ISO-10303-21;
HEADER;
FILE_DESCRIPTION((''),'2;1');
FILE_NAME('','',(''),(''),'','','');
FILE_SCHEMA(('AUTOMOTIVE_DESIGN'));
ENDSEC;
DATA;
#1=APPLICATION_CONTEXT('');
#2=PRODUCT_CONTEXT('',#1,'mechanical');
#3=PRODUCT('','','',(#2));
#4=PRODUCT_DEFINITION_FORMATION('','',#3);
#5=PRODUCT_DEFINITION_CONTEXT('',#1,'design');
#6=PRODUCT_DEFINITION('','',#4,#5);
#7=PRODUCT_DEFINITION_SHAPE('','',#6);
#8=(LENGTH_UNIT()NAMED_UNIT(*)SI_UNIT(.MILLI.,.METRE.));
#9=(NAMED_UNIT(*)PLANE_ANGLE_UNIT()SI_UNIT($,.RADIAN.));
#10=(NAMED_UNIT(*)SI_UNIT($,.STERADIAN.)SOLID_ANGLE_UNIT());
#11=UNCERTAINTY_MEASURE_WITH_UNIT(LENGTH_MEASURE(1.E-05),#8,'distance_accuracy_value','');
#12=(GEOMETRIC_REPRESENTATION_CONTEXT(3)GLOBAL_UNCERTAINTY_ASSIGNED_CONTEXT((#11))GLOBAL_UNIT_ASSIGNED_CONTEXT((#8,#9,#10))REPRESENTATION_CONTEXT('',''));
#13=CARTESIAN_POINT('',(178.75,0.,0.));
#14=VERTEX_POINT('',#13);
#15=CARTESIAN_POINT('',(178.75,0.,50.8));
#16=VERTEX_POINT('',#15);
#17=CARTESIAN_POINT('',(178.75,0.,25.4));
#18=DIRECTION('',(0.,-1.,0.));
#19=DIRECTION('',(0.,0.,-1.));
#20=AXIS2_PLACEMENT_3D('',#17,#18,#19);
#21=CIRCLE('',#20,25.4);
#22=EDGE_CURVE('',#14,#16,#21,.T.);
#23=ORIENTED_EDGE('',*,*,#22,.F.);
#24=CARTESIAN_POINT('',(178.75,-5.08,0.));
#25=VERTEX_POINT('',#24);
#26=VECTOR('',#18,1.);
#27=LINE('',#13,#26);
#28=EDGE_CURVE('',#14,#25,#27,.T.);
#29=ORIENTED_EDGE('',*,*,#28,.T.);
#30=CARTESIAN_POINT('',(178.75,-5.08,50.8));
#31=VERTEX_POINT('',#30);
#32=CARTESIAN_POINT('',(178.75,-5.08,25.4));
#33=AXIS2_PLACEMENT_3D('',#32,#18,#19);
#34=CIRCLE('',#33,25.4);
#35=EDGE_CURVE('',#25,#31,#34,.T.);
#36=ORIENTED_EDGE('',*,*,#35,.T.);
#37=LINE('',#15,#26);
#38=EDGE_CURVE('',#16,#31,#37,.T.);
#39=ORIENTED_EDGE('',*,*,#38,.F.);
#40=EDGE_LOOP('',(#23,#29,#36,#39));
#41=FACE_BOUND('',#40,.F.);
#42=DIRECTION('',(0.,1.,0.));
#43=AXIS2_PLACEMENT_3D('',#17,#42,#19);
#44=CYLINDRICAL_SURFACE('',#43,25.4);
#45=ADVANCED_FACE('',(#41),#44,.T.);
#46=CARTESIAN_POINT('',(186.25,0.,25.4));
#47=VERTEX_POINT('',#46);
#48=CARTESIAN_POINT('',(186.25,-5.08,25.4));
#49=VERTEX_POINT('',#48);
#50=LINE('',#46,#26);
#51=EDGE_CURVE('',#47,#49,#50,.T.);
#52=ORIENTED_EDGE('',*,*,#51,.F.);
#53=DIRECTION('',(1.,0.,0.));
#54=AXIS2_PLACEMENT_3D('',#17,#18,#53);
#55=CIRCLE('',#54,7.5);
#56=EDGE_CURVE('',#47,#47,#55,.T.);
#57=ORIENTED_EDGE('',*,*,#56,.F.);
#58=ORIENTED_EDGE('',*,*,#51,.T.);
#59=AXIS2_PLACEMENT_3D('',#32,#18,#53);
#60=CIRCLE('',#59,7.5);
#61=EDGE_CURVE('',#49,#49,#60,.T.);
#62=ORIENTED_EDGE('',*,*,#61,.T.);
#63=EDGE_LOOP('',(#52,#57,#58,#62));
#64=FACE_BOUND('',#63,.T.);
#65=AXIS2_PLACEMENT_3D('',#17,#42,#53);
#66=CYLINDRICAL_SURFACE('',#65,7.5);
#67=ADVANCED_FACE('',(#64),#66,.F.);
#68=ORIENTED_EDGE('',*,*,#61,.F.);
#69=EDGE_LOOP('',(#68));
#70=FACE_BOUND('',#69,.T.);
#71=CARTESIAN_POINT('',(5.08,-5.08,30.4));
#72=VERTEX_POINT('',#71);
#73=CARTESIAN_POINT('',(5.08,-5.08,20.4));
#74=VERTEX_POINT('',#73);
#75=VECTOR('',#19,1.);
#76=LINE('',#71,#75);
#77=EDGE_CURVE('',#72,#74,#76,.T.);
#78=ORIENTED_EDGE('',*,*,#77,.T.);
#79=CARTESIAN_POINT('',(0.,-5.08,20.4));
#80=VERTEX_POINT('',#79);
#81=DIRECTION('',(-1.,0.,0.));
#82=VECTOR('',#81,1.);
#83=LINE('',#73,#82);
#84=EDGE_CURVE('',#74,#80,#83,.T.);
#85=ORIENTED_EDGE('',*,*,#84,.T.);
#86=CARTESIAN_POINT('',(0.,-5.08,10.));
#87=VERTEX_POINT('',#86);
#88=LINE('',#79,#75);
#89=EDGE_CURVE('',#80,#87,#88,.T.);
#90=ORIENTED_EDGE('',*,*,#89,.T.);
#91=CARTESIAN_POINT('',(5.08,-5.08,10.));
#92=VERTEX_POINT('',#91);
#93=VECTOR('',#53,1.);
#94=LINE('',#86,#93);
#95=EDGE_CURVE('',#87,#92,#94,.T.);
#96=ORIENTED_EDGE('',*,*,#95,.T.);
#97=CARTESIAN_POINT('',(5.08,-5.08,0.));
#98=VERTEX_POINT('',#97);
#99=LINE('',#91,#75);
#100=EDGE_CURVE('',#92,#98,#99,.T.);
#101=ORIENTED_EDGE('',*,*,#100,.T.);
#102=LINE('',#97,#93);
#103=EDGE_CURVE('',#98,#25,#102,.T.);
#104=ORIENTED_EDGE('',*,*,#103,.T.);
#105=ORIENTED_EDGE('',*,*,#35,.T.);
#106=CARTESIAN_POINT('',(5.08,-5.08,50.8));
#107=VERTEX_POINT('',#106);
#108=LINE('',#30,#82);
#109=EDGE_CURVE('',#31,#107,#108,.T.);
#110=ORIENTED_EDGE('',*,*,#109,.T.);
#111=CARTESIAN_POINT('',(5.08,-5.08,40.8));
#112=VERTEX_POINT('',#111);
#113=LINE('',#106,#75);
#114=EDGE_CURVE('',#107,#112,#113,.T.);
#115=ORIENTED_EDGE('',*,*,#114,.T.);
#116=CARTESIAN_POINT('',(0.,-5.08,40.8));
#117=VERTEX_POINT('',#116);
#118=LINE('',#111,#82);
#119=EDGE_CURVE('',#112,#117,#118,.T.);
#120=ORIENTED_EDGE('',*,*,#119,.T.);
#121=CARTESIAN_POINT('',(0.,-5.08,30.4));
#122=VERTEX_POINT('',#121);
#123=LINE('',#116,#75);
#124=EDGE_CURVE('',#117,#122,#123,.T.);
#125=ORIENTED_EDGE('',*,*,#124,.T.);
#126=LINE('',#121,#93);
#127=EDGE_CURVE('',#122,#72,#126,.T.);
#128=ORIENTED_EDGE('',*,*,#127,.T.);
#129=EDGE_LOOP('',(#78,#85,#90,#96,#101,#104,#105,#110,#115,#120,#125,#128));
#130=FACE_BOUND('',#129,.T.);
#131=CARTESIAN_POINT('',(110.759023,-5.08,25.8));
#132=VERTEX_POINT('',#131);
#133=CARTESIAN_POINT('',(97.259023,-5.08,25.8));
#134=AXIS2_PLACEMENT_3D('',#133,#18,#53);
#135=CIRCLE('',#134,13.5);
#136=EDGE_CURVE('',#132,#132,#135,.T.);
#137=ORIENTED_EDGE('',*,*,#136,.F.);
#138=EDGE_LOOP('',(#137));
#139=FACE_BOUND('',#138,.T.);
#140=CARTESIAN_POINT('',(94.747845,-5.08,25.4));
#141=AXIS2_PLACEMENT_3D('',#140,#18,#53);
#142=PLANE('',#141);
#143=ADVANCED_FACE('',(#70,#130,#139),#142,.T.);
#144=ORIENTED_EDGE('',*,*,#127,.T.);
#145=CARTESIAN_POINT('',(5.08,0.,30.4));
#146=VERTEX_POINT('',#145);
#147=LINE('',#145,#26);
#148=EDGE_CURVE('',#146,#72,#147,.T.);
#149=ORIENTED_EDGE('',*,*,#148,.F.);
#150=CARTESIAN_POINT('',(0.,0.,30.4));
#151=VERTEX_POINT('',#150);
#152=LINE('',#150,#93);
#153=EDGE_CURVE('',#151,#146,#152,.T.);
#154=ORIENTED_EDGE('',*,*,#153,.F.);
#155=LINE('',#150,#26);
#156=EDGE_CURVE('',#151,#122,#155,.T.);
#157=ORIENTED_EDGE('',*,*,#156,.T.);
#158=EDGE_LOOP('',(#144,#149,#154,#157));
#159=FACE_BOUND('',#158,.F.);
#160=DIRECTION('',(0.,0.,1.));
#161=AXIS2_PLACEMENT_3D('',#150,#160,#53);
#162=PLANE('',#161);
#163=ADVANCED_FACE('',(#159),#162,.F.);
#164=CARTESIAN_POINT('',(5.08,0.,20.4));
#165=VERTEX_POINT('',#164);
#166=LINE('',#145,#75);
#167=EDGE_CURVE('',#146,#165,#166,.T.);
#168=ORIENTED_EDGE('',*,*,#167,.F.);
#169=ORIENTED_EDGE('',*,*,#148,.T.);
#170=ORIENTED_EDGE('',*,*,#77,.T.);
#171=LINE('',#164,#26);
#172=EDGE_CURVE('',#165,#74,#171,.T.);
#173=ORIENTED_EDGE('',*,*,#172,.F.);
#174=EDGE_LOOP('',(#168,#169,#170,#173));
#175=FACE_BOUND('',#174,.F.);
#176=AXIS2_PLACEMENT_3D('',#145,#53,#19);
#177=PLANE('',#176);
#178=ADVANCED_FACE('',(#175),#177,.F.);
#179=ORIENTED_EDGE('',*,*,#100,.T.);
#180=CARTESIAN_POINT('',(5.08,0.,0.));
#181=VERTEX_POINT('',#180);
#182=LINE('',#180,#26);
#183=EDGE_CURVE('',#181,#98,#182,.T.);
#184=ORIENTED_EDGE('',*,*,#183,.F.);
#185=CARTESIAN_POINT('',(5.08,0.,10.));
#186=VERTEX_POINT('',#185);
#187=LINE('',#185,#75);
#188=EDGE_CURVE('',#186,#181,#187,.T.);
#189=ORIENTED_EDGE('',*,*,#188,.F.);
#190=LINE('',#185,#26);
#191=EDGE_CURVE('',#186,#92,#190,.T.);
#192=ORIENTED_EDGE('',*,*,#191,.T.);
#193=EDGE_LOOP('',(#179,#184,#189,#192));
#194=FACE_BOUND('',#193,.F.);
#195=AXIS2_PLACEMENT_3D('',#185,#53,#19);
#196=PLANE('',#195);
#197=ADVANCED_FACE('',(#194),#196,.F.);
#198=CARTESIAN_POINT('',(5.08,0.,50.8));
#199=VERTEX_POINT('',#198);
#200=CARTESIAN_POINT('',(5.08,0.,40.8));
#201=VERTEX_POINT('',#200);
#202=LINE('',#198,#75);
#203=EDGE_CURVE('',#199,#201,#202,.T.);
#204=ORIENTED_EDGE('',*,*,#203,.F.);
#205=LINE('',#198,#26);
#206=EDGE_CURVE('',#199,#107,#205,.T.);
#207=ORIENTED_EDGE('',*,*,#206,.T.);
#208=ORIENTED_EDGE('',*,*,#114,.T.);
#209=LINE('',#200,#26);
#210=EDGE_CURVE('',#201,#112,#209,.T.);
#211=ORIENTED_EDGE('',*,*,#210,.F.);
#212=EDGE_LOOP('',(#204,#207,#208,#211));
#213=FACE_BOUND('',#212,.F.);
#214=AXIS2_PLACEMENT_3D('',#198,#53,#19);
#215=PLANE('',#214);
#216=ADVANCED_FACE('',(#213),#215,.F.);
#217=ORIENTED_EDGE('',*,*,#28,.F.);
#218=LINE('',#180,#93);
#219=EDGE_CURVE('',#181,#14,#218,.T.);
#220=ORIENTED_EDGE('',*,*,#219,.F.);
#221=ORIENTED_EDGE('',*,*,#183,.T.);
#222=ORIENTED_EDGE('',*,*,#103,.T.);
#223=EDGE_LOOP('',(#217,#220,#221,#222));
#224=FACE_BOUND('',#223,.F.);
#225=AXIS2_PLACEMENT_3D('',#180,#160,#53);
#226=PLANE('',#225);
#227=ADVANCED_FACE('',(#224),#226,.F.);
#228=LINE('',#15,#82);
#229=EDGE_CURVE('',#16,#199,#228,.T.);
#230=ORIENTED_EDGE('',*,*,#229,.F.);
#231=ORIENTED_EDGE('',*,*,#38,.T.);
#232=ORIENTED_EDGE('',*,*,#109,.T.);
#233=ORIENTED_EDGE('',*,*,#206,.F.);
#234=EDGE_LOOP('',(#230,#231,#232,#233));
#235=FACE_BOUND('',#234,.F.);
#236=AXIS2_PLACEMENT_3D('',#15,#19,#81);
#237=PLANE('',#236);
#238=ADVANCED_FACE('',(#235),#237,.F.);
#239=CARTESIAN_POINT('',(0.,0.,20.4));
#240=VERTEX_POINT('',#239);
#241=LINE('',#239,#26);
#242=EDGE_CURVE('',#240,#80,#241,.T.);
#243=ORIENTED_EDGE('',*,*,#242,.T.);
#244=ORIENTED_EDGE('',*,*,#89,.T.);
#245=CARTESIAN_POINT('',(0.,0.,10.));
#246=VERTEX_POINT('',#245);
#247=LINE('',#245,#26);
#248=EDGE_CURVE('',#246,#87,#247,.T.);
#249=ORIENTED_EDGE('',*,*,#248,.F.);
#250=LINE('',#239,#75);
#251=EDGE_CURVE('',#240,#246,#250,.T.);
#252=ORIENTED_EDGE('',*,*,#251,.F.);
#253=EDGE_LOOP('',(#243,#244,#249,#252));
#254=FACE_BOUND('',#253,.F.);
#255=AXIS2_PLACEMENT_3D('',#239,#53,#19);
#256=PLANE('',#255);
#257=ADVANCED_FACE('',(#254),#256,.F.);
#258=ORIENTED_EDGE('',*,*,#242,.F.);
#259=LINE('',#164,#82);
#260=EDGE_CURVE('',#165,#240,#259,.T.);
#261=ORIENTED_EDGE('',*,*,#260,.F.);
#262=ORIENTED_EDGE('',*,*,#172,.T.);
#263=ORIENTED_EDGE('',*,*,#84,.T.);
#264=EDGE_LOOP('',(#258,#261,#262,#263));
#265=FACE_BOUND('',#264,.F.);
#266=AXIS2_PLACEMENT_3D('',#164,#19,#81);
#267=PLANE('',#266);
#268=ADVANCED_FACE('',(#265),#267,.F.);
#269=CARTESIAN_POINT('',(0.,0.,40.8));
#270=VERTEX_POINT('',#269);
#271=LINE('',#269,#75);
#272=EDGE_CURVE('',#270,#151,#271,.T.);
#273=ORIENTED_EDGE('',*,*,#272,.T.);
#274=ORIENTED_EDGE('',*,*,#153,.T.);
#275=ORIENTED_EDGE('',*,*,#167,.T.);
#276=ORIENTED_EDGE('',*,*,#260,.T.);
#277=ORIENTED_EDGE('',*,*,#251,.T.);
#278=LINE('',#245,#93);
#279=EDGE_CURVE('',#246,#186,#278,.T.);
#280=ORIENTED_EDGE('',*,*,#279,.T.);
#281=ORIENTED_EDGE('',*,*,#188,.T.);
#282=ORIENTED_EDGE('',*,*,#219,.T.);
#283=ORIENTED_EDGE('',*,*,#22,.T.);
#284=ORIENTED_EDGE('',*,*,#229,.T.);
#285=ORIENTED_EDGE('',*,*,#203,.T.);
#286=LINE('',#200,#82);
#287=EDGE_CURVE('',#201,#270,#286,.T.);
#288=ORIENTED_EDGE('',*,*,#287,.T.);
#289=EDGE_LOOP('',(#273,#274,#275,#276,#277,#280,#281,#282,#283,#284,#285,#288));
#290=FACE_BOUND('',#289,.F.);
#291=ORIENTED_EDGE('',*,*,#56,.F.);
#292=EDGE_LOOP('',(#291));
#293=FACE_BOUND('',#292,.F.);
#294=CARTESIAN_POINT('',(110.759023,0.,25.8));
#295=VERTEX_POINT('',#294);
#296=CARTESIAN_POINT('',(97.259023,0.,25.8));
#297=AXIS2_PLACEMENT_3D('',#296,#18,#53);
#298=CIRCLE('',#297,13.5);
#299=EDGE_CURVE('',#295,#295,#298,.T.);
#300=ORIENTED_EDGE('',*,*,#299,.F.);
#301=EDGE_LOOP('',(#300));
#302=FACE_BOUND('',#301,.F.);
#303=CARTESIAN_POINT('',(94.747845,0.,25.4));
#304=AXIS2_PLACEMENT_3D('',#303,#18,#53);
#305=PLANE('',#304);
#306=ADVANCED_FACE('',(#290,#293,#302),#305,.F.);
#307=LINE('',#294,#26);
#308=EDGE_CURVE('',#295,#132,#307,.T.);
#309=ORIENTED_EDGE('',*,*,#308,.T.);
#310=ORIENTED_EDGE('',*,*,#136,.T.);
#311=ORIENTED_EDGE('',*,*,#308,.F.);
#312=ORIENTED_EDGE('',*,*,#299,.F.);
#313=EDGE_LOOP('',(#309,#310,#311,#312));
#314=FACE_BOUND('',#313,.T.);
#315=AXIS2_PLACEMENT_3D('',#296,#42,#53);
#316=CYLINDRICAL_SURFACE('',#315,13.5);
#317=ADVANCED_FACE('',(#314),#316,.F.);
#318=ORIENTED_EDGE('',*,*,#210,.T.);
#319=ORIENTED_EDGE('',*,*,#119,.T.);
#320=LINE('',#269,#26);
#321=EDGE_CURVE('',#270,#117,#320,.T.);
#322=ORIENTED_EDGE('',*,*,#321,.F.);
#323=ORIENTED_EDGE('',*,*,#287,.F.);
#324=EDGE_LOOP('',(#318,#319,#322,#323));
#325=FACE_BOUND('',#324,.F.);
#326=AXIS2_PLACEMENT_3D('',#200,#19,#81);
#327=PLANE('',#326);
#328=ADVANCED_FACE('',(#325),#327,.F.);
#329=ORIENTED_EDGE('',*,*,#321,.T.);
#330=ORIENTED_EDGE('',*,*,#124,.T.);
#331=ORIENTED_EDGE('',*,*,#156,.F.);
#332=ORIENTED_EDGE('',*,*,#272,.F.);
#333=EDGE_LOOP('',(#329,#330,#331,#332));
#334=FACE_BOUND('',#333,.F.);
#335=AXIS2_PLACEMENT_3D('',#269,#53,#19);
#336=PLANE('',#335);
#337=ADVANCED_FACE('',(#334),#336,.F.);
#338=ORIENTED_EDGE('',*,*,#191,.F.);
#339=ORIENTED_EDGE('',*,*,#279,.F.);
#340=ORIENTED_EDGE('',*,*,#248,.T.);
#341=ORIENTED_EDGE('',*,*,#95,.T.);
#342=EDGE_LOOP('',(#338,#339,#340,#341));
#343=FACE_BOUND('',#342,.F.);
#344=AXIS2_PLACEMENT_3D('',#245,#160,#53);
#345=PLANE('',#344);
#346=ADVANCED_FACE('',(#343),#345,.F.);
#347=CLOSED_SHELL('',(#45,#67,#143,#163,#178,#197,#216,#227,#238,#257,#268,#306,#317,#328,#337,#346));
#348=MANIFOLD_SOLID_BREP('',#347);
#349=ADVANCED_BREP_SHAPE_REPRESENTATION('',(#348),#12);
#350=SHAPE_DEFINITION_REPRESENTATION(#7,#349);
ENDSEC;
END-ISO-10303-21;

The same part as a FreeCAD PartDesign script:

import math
import FreeCAD as App
import Part
import Sketcher

V = App.Vector

doc = App.newDocument("Part")
body = doc.addObject("PartDesign::Body", "Body")

sketch1 = doc.addObject("Sketcher::SketchObject", "Sketch")
body.addObject(sketch1)
sketch1.AttachmentSupport = (doc.XZ_Plane, [""])
sketch1.MapMode = "FlatFace"
sketch1.addGeometry([
    Part.LineSegment(V(5, 0, 0), V(179, 0, 0)),
    Part.ArcOfCircle(Part.Circle(V(179, 25, 0), V(0, 0, 1), 25), math.radians(-90), math.radians(90)),
    Part.LineSegment(V(179, 51, 0), V(5, 51, 0)),
    Part.LineSegment(V(5, 51, 0), V(5, 41, 0)),
    Part.LineSegment(V(5, 41, 0), V(0, 41, 0)),
    Part.LineSegment(V(0, 41, 0), V(0, 30, 0)),
    Part.LineSegment(V(0, 30, 0), V(5, 30, 0)),
    Part.LineSegment(V(5, 30, 0), V(5, 20, 0)),
    Part.LineSegment(V(5, 20, 0), V(0, 20, 0)),
    Part.LineSegment(V(0, 20, 0), V(0, 10, 0)),
    Part.LineSegment(V(0, 10, 0), V(5, 10, 0)),
    Part.LineSegment(V(5, 10, 0), V(5, 0, 0)),
    Part.Circle(V(179, 25, 0), V(0, 0, 1), 8),
    Part.Circle(V(97, 26, 0), V(0, 0, 1), 14),
], False)
sketch1.addConstraint([
    Sketcher.Constraint("Tangent", 0, 2, 1, 1),
    Sketcher.Constraint("Tangent", 1, 2, 2, 1),
    Sketcher.Constraint("Coincident", 2, 2, 3, 1),
    Sketcher.Constraint("Coincident", 3, 2, 4, 1),
    Sketcher.Constraint("Coincident", 4, 2, 5, 1),
    Sketcher.Constraint("Coincident", 5, 2, 6, 1),
    Sketcher.Constraint("Coincident", 6, 2, 7, 1),
    Sketcher.Constraint("Coincident", 7, 2, 8, 1),
    Sketcher.Constraint("Coincident", 8, 2, 9, 1),
    Sketcher.Constraint("Coincident", 9, 2, 10, 1),
    Sketcher.Constraint("Coincident", 10, 2, 11, 1),
    Sketcher.Constraint("Coincident", 11, 2, 0, 1),
    Sketcher.Constraint("Horizontal", 0),
    Sketcher.Constraint("Horizontal", 2),
    Sketcher.Constraint("Vertical", 3),
    Sketcher.Constraint("Horizontal", 4),
    Sketcher.Constraint("Vertical", 5),
    Sketcher.Constraint("Horizontal", 6),
    Sketcher.Constraint("Vertical", 7),
    Sketcher.Constraint("Horizontal", 8),
    Sketcher.Constraint("Vertical", 9),
    Sketcher.Constraint("Horizontal", 10),
    Sketcher.Constraint("Vertical", 11),
    Sketcher.Constraint("Coincident", 12, 3, 1, 3),
    Sketcher.Constraint("PointOnObject", 0, 2, -1),
    Sketcher.Constraint("PointOnObject", 4, 2, -2),
    Sketcher.Constraint("PointOnObject", 8, 2, -2),
    Sketcher.Constraint("Vertical", 3, 2, 6, 2),
    Sketcher.Constraint("Vertical", 7, 2, 10, 2),
    Sketcher.Constraint("Equal", 3, 7),
    Sketcher.Constraint("Equal", 5, 9),
    Sketcher.Constraint("Equal", 7, 11),
    Sketcher.Constraint("Diameter", 12, 15.0),
    Sketcher.Constraint("Diameter", 13, 27.0),
    Sketcher.Constraint("Radius", 1, 25.4),
    Sketcher.Constraint("DistanceY", 3, 2, 3, 1, 10.0),
    Sketcher.Constraint("DistanceY", 13, 3, 1, 2, 25.0),
    Sketcher.Constraint("DistanceX", 0, 1, 0, 2, 173.67),
    Sketcher.Constraint("DistanceX", 4, 2, 4, 1, 5.08),
    Sketcher.Constraint("DistanceX", -1, 1, 13, 3, 97.259023),
])
pad1 = doc.addObject("PartDesign::Pad", "Pad")
body.addObject(pad1)
pad1.Profile = sketch1
pad1.Length = 5.08

doc.recompute()
